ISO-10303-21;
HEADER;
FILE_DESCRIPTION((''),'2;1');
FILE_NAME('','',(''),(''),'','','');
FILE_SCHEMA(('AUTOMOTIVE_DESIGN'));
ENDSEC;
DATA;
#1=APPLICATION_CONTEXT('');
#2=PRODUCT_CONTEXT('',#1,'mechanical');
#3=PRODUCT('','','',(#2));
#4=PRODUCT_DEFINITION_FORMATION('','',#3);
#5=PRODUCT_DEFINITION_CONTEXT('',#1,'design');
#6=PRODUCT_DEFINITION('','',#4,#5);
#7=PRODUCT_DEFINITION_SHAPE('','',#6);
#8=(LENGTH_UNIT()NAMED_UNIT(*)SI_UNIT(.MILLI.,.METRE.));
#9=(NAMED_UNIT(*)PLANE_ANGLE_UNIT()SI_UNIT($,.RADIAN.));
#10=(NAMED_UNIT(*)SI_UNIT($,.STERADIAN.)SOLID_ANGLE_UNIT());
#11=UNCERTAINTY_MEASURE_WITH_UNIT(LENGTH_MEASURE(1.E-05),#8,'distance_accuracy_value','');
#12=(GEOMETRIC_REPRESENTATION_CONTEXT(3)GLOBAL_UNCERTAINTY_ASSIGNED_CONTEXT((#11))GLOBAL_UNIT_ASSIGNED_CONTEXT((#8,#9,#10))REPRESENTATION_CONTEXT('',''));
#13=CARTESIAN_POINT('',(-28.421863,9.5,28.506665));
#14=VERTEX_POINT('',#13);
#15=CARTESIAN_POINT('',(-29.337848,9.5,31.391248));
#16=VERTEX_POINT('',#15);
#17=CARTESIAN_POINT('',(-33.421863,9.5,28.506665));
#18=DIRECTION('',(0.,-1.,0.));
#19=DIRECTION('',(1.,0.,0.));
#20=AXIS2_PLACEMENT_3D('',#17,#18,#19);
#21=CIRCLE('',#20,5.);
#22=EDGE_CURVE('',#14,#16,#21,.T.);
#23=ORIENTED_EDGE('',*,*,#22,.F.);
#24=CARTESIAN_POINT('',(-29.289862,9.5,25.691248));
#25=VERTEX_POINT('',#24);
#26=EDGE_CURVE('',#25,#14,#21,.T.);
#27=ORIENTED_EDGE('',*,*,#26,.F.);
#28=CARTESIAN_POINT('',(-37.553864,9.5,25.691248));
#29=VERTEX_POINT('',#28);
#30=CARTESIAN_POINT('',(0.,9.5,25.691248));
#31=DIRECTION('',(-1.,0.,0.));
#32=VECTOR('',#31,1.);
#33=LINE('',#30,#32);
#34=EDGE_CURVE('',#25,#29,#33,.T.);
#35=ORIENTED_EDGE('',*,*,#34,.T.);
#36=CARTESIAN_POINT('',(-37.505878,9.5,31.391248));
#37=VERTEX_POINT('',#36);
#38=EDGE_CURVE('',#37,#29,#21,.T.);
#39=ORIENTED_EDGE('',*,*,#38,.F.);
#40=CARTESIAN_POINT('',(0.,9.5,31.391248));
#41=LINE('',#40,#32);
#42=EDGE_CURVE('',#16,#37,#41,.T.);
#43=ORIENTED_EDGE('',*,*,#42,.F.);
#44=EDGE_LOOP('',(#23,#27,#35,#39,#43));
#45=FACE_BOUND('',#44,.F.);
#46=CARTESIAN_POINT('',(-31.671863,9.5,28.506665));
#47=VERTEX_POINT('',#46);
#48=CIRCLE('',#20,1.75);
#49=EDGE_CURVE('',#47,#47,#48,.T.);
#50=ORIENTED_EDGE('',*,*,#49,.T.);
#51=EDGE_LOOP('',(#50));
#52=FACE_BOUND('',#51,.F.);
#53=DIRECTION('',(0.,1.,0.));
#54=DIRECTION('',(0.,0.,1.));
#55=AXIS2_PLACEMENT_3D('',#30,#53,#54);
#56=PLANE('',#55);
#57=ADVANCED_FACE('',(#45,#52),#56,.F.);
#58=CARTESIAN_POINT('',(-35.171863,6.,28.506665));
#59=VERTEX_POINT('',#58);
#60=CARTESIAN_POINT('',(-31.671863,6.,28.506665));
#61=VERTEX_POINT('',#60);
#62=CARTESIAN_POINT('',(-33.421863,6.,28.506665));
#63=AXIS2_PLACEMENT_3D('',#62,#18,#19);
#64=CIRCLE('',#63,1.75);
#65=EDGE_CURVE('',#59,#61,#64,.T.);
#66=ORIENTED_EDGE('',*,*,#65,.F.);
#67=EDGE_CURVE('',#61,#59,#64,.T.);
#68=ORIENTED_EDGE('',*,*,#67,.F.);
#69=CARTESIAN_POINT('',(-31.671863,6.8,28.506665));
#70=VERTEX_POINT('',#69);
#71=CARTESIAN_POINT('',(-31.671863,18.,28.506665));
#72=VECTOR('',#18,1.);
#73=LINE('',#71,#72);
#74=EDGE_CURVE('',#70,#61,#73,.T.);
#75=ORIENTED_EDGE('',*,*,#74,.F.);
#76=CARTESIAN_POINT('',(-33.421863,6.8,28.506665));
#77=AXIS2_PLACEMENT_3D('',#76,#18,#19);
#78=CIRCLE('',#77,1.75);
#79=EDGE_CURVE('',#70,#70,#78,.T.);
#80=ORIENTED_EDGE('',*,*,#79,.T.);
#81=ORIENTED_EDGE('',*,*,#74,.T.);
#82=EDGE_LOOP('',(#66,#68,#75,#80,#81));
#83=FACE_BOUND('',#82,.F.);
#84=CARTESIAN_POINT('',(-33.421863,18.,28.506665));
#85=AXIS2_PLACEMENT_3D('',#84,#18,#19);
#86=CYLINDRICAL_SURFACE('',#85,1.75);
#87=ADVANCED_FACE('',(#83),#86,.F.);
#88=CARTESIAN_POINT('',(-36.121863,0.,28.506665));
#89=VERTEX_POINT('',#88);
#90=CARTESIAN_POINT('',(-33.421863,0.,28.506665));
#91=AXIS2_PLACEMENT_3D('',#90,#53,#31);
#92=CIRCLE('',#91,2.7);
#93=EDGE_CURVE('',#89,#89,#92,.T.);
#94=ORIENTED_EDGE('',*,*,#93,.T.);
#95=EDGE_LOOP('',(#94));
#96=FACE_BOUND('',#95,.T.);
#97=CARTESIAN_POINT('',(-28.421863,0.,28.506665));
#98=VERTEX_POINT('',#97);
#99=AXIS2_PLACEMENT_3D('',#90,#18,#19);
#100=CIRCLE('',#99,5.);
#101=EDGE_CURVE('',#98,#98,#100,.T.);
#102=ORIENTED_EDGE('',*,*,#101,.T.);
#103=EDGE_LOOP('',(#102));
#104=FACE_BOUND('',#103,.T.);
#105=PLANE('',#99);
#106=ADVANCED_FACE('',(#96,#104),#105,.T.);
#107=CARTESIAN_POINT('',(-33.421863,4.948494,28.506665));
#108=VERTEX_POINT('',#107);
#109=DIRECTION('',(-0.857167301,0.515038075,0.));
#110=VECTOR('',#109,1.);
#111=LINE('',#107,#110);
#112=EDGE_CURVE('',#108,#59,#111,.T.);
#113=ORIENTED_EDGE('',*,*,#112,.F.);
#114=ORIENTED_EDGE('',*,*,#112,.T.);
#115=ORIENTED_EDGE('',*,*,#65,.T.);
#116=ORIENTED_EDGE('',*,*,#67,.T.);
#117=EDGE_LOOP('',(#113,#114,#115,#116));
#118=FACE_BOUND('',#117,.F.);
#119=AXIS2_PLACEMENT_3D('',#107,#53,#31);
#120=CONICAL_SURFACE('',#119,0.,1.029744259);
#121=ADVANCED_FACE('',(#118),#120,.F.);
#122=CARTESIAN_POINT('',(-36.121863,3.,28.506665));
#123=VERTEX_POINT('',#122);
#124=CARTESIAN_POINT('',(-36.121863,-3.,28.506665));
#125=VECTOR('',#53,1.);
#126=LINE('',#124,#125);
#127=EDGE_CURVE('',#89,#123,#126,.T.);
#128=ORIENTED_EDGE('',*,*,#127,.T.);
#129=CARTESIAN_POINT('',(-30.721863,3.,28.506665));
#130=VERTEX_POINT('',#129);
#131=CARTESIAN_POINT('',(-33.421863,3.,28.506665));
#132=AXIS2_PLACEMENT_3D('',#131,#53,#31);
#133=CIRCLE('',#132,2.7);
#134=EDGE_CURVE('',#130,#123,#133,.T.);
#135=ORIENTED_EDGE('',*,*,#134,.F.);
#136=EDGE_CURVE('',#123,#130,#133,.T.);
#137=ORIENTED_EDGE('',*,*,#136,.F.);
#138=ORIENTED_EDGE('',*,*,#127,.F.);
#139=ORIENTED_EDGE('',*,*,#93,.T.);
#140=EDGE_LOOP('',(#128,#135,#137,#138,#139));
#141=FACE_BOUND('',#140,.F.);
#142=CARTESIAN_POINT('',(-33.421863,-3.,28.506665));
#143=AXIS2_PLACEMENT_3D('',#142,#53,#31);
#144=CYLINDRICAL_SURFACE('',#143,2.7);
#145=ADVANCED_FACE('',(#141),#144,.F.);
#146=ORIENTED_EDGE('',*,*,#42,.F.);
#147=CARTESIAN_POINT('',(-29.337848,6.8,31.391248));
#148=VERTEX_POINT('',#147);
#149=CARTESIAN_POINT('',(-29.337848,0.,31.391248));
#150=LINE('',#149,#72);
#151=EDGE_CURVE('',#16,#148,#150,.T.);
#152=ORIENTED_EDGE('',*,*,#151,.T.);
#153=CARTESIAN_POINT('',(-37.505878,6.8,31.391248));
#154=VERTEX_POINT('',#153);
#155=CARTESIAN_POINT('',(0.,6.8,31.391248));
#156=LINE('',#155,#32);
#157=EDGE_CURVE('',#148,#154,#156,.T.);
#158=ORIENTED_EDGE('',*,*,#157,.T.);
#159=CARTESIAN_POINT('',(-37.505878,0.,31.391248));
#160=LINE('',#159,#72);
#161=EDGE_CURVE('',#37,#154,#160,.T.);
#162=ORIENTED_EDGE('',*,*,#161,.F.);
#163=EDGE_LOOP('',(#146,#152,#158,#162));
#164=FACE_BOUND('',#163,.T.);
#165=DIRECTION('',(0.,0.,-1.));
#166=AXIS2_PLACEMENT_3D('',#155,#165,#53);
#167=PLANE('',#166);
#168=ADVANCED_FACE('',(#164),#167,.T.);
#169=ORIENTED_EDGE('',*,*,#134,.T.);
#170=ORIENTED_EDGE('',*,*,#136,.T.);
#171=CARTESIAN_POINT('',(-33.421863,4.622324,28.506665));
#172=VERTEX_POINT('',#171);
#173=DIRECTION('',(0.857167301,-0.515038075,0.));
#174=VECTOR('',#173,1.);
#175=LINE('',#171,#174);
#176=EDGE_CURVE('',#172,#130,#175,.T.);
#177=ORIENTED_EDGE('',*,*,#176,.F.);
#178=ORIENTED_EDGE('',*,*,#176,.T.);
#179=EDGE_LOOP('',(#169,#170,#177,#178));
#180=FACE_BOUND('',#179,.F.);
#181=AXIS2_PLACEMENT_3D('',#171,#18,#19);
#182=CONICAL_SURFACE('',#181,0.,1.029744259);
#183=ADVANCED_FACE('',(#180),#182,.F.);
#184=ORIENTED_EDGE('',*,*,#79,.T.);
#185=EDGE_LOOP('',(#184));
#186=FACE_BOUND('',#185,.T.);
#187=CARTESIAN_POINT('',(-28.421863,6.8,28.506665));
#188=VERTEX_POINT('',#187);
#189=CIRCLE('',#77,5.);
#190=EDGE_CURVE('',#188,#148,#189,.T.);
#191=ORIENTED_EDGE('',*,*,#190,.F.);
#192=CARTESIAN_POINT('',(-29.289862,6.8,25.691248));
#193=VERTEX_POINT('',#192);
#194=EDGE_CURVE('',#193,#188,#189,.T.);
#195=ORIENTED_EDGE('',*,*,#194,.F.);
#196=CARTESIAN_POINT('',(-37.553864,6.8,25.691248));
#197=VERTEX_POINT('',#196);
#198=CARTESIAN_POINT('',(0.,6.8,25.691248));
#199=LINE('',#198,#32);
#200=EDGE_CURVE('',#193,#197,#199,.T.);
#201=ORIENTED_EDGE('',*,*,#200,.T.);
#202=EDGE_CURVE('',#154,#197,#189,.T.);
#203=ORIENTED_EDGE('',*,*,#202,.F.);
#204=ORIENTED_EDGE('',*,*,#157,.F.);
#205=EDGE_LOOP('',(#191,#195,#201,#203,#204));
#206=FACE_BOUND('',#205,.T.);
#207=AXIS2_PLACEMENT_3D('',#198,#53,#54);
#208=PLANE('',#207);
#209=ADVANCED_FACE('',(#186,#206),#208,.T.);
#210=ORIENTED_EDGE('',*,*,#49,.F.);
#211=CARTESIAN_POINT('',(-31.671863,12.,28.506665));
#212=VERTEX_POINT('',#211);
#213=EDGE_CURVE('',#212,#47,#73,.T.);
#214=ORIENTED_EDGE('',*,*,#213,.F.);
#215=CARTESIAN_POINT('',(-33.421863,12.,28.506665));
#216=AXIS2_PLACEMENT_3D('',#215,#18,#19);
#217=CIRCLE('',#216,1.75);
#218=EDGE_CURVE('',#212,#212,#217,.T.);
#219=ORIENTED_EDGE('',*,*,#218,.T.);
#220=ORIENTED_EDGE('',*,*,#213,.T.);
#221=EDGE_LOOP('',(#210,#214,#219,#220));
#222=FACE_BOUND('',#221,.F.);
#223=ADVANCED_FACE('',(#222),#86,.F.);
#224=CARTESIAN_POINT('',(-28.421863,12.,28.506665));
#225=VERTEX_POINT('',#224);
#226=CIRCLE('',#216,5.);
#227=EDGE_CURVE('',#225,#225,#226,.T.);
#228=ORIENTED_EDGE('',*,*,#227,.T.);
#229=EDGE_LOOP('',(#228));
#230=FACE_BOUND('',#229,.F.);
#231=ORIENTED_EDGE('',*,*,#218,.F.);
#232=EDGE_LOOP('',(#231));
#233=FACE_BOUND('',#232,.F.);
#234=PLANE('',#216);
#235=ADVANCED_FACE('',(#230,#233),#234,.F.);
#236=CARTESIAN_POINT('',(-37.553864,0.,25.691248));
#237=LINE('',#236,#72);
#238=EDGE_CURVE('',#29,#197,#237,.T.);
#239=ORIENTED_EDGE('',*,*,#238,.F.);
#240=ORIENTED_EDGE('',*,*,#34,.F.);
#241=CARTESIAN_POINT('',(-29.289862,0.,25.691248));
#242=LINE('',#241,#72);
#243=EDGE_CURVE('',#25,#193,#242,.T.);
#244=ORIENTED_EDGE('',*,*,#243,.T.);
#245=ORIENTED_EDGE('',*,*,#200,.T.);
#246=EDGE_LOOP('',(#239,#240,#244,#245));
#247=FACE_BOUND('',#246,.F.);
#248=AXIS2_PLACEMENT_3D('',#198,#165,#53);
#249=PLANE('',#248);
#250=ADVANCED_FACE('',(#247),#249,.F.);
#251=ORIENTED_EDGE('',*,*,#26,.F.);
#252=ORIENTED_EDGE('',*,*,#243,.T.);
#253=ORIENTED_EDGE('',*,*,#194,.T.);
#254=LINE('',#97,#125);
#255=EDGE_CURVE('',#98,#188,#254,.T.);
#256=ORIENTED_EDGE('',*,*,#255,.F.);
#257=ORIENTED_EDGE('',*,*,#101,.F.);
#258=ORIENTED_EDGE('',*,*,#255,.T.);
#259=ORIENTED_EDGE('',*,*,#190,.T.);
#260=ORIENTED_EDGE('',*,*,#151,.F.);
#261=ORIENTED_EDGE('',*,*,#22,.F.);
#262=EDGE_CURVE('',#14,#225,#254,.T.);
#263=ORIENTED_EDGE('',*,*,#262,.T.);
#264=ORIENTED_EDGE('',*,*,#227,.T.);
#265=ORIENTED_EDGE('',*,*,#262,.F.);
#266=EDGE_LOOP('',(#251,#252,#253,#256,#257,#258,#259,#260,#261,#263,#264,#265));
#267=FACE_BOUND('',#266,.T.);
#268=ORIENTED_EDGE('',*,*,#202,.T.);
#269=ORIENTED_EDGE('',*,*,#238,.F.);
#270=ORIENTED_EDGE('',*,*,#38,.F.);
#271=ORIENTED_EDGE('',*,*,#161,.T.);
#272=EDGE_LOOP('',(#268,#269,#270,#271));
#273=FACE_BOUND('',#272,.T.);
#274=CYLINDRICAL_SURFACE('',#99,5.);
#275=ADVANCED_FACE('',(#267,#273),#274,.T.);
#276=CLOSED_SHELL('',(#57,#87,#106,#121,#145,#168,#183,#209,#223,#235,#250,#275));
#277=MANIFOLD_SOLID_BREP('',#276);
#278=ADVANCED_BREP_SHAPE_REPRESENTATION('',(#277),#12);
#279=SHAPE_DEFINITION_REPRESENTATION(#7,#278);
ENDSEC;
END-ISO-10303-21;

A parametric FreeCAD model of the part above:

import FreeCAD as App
import Part
import Sketcher

V = App.Vector


def add_polygon(sketch, points):
    """Adds a closed chain of lines whose ends are joined by coincident constraints."""
    first, n = sketch.GeometryCount, len(points)
    for a, b in zip(points, points[1:] + points[:1]):
        sketch.addGeometry(Part.LineSegment(App.Vector(*a, 0), App.Vector(*b, 0)), False)
    for i in range(n):
        sketch.addConstraint(Sketcher.Constraint("Coincident", first + i, 2, first + (i + 1) % n, 1))

doc = App.newDocument("Part")
body = doc.addObject("PartDesign::Body", "Body")

# Sketch on XZ plane
sketch1 = body.newObject("Sketcher::SketchObject", "Sketch")
sketch1.AttachmentSupport = (doc.getObject("XZ_Plane"), [""])
sketch1.MapMode = "FlatFace"
sketch1.addGeometry(Part.Circle(V(-33.421863, 28.506665, 0), V(0, 0, 1), 5), False)
sketch1.addConstraint(Sketcher.Constraint("Diameter", 0, 10.0))
sketch1.addConstraint(Sketcher.Constraint("DistanceX", 0, 3, -1, 1, 33.421863))
sketch1.addConstraint(Sketcher.Constraint("DistanceY", -1, 1, 0, 3, 28.506665))
pad1 = body.newObject("PartDesign::Pad", "Pad")
pad1.Profile = sketch1
pad1.Length = 12
pad1.Reversed = True

# Sketch on XZ plane
sketch2 = body.newObject("Sketcher::SketchObject", "Sketch001")
sketch2.AttachmentSupport = (doc.getObject("XZ_Plane"), [""])
sketch2.MapMode = "FlatFace"
sketch2.addGeometry(Part.Circle(V(-33.421863, 28.506665, 0), V(0, 0, 1), 2.7), False)
sketch2.addConstraint(Sketcher.Constraint("Diameter", 0, 5.4))
sketch2.addConstraint(Sketcher.Constraint("DistanceX", 0, 3, -1, 1, 33.421863))
sketch2.addConstraint(Sketcher.Constraint("DistanceY", -1, 1, 0, 3, 28.506665))
doc.recompute()
hole = body.newObject("PartDesign::Hole", "Hole")
hole.Profile = sketch2
hole.ThreadType = "None"
hole.Diameter = 5.4
hole.DepthType = "Dimension"
hole.Depth = 3
hole.DrillPoint = "Angled"
hole.DrillPointAngle = 118

# Sketch on XZ plane
sketch3 = body.newObject("Sketcher::SketchObject", "Sketch002")
sketch3.AttachmentSupport = (doc.getObject("XZ_Plane"), [""])
sketch3.MapMode = "FlatFace"
sketch3.AttachmentOffset = App.Placement(V(0, 0, -12), App.Rotation())
sketch3.addGeometry(Part.Circle(V(-33.421863, 28.506665, 0), V(0, 0, 1), 1.75), False)
sketch3.addConstraint(Sketcher.Constraint("Diameter", 0, 3.5))
sketch3.addConstraint(Sketcher.Constraint("DistanceX", 0, 3, -1, 1, 33.421863))
sketch3.addConstraint(Sketcher.Constraint("DistanceY", -1, 1, 0, 3, 28.506665))
doc.recompute()
hole2 = body.newObject("PartDesign::Hole", "Hole001")
hole2.Profile = sketch3
hole2.ThreadType = "None"
hole2.Diameter = 3.5
hole2.DepthType = "Dimension"
hole2.Depth = 6
hole2.DrillPoint = "Angled"
hole2.DrillPointAngle = 118
hole2.Reversed = True

# Sketch on YZ plane
sketch4 = body.newObject("Sketcher::SketchObject", "Sketch003")
sketch4.AttachmentSupport = (doc.getObject("YZ_Plane"), [""])
sketch4.MapMode = "FlatFace"
add_polygon(sketch4, [(6.8, 31.391248), (6.8, 25.691248), (9.5, 25.691248), (9.5, 31.391248)])  # lines 0-3
sketch4.addConstraint(Sketcher.Constraint("Vertical", 0))
sketch4.addConstraint(Sketcher.Constraint("Horizontal", 1))
sketch4.addConstraint(Sketcher.Constraint("Vertical", 2))
sketch4.addConstraint(Sketcher.Constraint("Horizontal", 3))
sketch4.addConstraint(Sketcher.Constraint("DistanceX", 1, 1, 1, 2, 2.7))
sketch4.addConstraint(Sketcher.Constraint("DistanceY", 0, 2, 0, 1, 5.7))
sketch4.addConstraint(Sketcher.Constraint("DistanceX", -1, 1, 0, 2, 6.8))
sketch4.addConstraint(Sketcher.Constraint("DistanceY", -1, 1, 0, 2, 25.691248))
pocket1 = body.newObject("PartDesign::Pocket", "Pocket")
pocket1.Profile = sketch4
pocket1.Type = "ThroughAll"

doc.recompute()
